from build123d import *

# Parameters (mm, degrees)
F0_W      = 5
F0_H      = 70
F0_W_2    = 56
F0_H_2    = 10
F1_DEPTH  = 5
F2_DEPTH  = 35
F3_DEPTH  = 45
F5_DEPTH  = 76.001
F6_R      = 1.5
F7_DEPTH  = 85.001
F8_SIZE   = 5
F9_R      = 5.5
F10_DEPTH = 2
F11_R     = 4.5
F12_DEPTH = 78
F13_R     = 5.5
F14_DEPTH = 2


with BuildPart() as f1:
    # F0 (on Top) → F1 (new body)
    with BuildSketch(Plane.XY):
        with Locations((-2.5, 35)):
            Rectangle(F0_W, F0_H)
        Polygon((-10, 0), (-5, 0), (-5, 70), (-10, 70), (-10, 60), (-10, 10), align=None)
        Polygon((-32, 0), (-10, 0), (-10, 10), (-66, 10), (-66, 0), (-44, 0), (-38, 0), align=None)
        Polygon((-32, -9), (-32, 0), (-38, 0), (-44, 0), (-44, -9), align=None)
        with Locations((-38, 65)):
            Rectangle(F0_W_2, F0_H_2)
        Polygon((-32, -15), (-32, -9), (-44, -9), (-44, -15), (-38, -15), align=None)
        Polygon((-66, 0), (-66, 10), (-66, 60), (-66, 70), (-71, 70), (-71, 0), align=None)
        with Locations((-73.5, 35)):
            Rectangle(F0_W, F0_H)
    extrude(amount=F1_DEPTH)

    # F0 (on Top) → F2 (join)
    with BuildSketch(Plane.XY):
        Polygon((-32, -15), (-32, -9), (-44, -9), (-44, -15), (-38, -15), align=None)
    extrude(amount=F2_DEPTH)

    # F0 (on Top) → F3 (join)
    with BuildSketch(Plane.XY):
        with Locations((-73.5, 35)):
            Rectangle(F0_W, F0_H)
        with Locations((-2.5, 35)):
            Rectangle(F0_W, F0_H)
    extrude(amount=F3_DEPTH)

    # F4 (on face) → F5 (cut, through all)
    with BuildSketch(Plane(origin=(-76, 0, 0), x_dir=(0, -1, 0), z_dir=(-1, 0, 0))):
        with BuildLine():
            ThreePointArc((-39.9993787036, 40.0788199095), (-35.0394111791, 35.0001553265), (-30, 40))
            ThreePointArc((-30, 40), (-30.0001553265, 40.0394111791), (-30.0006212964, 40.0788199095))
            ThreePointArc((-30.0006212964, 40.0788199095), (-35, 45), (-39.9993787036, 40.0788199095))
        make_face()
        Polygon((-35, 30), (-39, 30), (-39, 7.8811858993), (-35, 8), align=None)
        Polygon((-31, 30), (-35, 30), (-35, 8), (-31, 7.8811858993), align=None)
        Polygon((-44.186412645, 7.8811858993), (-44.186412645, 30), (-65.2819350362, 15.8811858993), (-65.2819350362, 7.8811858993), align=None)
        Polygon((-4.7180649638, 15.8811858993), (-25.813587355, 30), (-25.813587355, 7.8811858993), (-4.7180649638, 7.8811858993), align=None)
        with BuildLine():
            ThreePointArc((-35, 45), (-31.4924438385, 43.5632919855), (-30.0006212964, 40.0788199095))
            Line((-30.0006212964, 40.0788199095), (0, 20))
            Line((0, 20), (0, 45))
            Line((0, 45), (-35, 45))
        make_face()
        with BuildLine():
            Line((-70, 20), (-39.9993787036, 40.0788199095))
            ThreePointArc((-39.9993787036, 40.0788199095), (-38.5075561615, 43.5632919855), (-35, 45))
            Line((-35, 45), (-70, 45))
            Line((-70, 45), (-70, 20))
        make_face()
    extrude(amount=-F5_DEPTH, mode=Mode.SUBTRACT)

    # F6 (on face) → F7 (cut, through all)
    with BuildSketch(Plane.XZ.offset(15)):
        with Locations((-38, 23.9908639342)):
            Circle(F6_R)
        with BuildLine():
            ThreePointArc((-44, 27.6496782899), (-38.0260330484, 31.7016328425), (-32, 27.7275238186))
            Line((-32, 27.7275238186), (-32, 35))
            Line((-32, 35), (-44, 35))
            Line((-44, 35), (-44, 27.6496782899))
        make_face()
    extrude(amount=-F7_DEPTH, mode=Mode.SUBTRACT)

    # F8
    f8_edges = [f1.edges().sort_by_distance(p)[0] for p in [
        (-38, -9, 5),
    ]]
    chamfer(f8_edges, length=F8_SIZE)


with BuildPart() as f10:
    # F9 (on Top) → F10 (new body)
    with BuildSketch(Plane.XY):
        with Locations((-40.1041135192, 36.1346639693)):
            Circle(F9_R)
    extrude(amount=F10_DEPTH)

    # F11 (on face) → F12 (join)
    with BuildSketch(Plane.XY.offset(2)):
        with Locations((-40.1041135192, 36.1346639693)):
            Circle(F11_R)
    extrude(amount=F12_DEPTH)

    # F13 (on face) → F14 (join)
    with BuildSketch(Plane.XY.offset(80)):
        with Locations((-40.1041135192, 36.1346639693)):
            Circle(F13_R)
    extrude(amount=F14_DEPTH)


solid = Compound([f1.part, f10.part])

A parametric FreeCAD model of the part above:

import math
import FreeCAD as App
import Part
import Sketcher
from FreeCAD import Vector
Q = App.Units.Quantity


def edges_at(feature, points):
    """Names of the edges that pass closest to the given points."""
    edges = feature.Shape.Edges
    near = lambda p: min(range(len(edges)), key=lambda i: edges[i].distToShape(Part.Vertex(*p))[0])
    return sorted({f"Edge{near(p) + 1}" for p in points})


def add_polygon(sketch, points):
    """Adds a closed chain of lines whose ends are joined by coincident constraints."""
    first, n = sketch.GeometryCount, len(points)
    for a, b in zip(points, points[1:] + points[:1]):
        sketch.addGeometry(Part.LineSegment(App.Vector(*a, 0), App.Vector(*b, 0)), False)
    for i in range(n):
        sketch.addConstraint(Sketcher.Constraint("Coincident", first + i, 2, first + (i + 1) % n, 1))

doc = App.newDocument("Part")
body = doc.addObject("PartDesign::Body", "Body")

# Sketch on XY plane
sketch1 = doc.addObject("Sketcher::SketchObject", "Sketch")
body.addObject(sketch1)
sketch1.AttachmentSupport = (doc.XY_Plane, [""])
sketch1.MapMode = "FlatFace"
add_polygon(sketch1, [(0, 0), (0, 70), (-76, 70), (-76, 0), (-44, 0), (-44, -15), (-32, -15), (-32, 0)])  # lines 0-7
add_polygon(sketch1, [(-66, 60), (-10, 60), (-10, 10), (-66, 10)])  # lines 8-11
sketch1.addConstraint(Sketcher.Constraint("Vertical", 0))
sketch1.addConstraint(Sketcher.Constraint("Horizontal", 1))
sketch1.addConstraint(Sketcher.Constraint("Vertical", 2))
sketch1.addConstraint(Sketcher.Constraint("Horizontal", 3))
sketch1.addConstraint(Sketcher.Constraint("Vertical", 4))
sketch1.addConstraint(Sketcher.Constraint("Horizontal", 5))
sketch1.addConstraint(Sketcher.Constraint("Vertical", 6))
sketch1.addConstraint(Sketcher.Constraint("Horizontal", 7))
sketch1.addConstraint(Sketcher.Constraint("Horizontal", 8))
sketch1.addConstraint(Sketcher.Constraint("Vertical", 9))
sketch1.addConstraint(Sketcher.Constraint("Horizontal", 10))
sketch1.addConstraint(Sketcher.Constraint("Vertical", 11))
sketch1.addConstraint(Sketcher.Constraint("Coincident", 7, 2, -1, 1))
sketch1.addConstraint(Sketcher.Constraint("PointOnObject", 2, 2, -1))
sketch1.addConstraint(Sketcher.Constraint("Equal", 3, 7))
sketch1.addConstraint(Sketcher.Constraint("DistanceX", 1, 2, 1, 1, Q("76 mm")))
sketch1.addConstraint(Sketcher.Constraint("DistanceX", 3, 1, 3, 2, Q("32 mm")))
sketch1.addConstraint(Sketcher.Constraint("DistanceX", 8, 1, 8, 2, Q("56 mm")))
sketch1.addConstraint(Sketcher.Constraint("DistanceY", 0, 1, 0, 2, Q("70 mm")))
sketch1.addConstraint(Sketcher.Constraint("DistanceY", 4, 2, 4, 1, Q("15 mm")))
sketch1.addConstraint(Sketcher.Constraint("DistanceY", 9, 2, 9, 1, Q("50 mm")))
sketch1.addConstraint(Sketcher.Constraint("DistanceX", 8, 2, -1, 1, Q("10 mm")))
sketch1.addConstraint(Sketcher.Constraint("DistanceY", -1, 1, 8, 2, Q("60 mm")))
pad1 = doc.addObject("PartDesign::Pad", "Pad")
body.addObject(pad1)
pad1.Profile = sketch1
pad1.Length = 5

# Sketch on XY plane
sketch2 = doc.addObject("Sketcher::SketchObject", "Sketch001")
body.addObject(sketch2)
sketch2.AttachmentSupport = (doc.XY_Plane, [""])
sketch2.MapMode = "FlatFace"
add_polygon(sketch2, [(-32, -15), (-32, -9), (-44, -9), (-44, -15)])  # lines 0-3
sketch2.addConstraint(Sketcher.Constraint("Vertical", 0))
sketch2.addConstraint(Sketcher.Constraint("Horizontal", 1))
sketch2.addConstraint(Sketcher.Constraint("Vertical", 2))
sketch2.addConstraint(Sketcher.Constraint("Horizontal", 3))
sketch2.addConstraint(Sketcher.Constraint("DistanceX", 1, 2, 1, 1, Q("12 mm")))
sketch2.addConstraint(Sketcher.Constraint("DistanceY", 0, 1, 0, 2, Q("6 mm")))
sketch2.addConstraint(Sketcher.Constraint("DistanceX", 0, 2, -1, 1, Q("32 mm")))
sketch2.addConstraint(Sketcher.Constraint("DistanceY", 0, 2, -1, 1, Q("9 mm")))
pad2 = doc.addObject("PartDesign::Pad", "Pad001")
body.addObject(pad2)
pad2.Profile = sketch2
pad2.Length = 35

# Sketch on XY plane
sketch3 = doc.addObject("Sketcher::SketchObject", "Sketch002")
body.addObject(sketch3)
sketch3.AttachmentSupport = (doc.XY_Plane, [""])
sketch3.MapMode = "FlatFace"
add_polygon(sketch3, [(-76, 70), (-76, 0), (-71, 0), (-71, 70)])  # lines 0-3
add_polygon(sketch3, [(-5, 70), (-5, 0), (0, 0), (0, 70)])  # lines 4-7
sketch3.addConstraint(Sketcher.Constraint("Vertical", 0))
sketch3.addConstraint(Sketcher.Constraint("Horizontal", 1))
sketch3.addConstraint(Sketcher.Constraint("Vertical", 2))
sketch3.addConstraint(Sketcher.Constraint("Horizontal", 3))
sketch3.addConstraint(Sketcher.Constraint("Vertical", 4))
sketch3.addConstraint(Sketcher.Constraint("Horizontal", 5))
sketch3.addConstraint(Sketcher.Constraint("Vertical", 6))
sketch3.addConstraint(Sketcher.Constraint("Horizontal", 7))
sketch3.addConstraint(Sketcher.Constraint("Coincident", 5, 2, -1, 1))
sketch3.addConstraint(Sketcher.Constraint("PointOnObject", 0, 2, -1))
sketch3.addConstraint(Sketcher.Constraint("Horizontal", 3, 2, 6, 2))
sketch3.addConstraint(Sketcher.Constraint("Equal", 3, 5))
sketch3.addConstraint(Sketcher.Constraint("DistanceX", 1, 1, 1, 2, Q("5 mm")))
sketch3.addConstraint(Sketcher.Constraint("DistanceY", 0, 2, 0, 1, Q("70 mm")))
sketch3.addConstraint(Sketcher.Constraint("DistanceX", 0, 2, -1, 1, Q("76 mm")))
pad3 = doc.addObject("PartDesign::Pad", "Pad002")
body.addObject(pad3)
pad3.Profile = sketch3
pad3.Length = 45

# Sketch on YZ plane
sketch4 = doc.addObject("Sketcher::SketchObject", "Sketch003")
body.addObject(sketch4)
sketch4.AttachmentSupport = (doc.YZ_Plane, [""])
sketch4.MapMode = "FlatFace"
sketch4.AttachmentOffset = App.Placement(Vector(0, 0, -76), App.Rotation())
sketch4.addGeometry(Part.ArcOfCircle(Part.Circle(Vector(35, 40, 0), Vector(0, 0, 1), 5), math.radians(180), math.radians(361)), False)  # 0
sketch4.addGeometry(Part.ArcOfCircle(Part.Circle(Vector(35, 40, 0), Vector(0, 0, 1), 5), math.radians(179.1), math.radians(180)), False)  # 1
sketch4.addGeometry(Part.LineSegment(Vector(30, 40.08, 0), Vector(0, 20, 0)), False)  # 2
sketch4.addGeometry(Part.LineSegment(Vector(0, 20, 0), Vector(0, 45, 0)), False)  # 3
sketch4.addGeometry(Part.LineSegment(Vector(0, 45, 0), Vector(70, 45, 0)), False)  # 4
sketch4.addGeometry(Part.LineSegment(Vector(70, 45, 0), Vector(70, 20, 0)), False)  # 5
sketch4.addGeometry(Part.LineSegment(Vector(70, 20, 0), Vector(40, 40.08, 0)), False)  # 6
add_polygon(sketch4, [(39, 30), (39, 7.88), (35, 8), (31, 7.88), (31, 30)])  # lines 7-11
add_polygon(sketch4, [(44.19, 7.88), (44.19, 30), (65.28, 15.88), (65.28, 7.88)])  # lines 12-15
add_polygon(sketch4, [(4.72, 15.88), (25.81, 30), (25.81, 7.88), (4.72, 7.88)])  # lines 16-19
sketch4.addConstraint(Sketcher.Constraint("Tangent", 0, 1, 1, 2))
sketch4.addConstraint(Sketcher.Constraint("Coincident", 1, 1, 2, 1))
sketch4.addConstraint(Sketcher.Constraint("Coincident", 2, 2, 3, 1))
sketch4.addConstraint(Sketcher.Constraint("Coincident", 3, 2, 4, 1))
sketch4.addConstraint(Sketcher.Constraint("Coincident", 4, 2, 5, 1))
sketch4.addConstraint(Sketcher.Constraint("Coincident", 5, 2, 6, 1))
sketch4.addConstraint(Sketcher.Constraint("Coincident", 6, 2, 0, 2))
sketch4.addConstraint(Sketcher.Constraint("Vertical", 3))
sketch4.addConstraint(Sketcher.Constraint("Horizontal", 4))
sketch4.addConstraint(Sketcher.Constraint("Vertical", 5))
sketch4.addConstraint(Sketcher.Constraint("Vertical", 7))
sketch4.addConstraint(Sketcher.Constraint("Vertical", 10))
sketch4.addConstraint(Sketcher.Constraint("Horizontal", 11))
sketch4.addConstraint(Sketcher.Constraint("Vertical", 12))
sketch4.addConstraint(Sketcher.Constraint("Vertical", 14))
sketch4.addConstraint(Sketcher.Constraint("Horizontal", 15))
sketch4.addConstraint(Sketcher.Constraint("Vertical", 17))
sketch4.addConstraint(Sketcher.Constraint("Horizontal", 18))
sketch4.addConstraint(Sketcher.Constraint("Vertical", 19))
sketch4.addConstraint(Sketcher.Constraint("Equal", 0, 1))
sketch4.addConstraint(Sketcher.Constraint("PointOnObject", 2, 2, -2))
sketch4.addConstraint(Sketcher.Constraint("Parallel", 6, 13))
sketch4.addConstraint(Sketcher.Constraint("Parallel", 2, 16))
sketch4.addConstraint(Sketcher.Constraint("Horizontal", 1, 3, 0, 1))
sketch4.addConstraint(Sketcher.Constraint("Horizontal", 2, 2, 5, 2))
sketch4.addConstraint(Sketcher.Constraint("Horizontal", 1, 1, 6, 2))
sketch4.addConstraint(Sketcher.Constraint("Horizontal", 7, 2, 9, 2))
sketch4.addConstraint(Sketcher.Constraint("Horizontal", 11, 2, 12, 2))
sketch4.addConstraint(Sketcher.Constraint("Horizontal", 9, 2, 14, 2))
sketch4.addConstraint(Sketcher.Constraint("Horizontal", 12, 2, 16, 2))
sketch4.addConstraint(Sketcher.Constraint("Horizontal", 15, 2, 17, 2))
sketch4.addConstraint(Sketcher.Constraint("Horizontal", 13, 2, 19, 2))
sketch4.addConstraint(Sketcher.Constraint("Vertical", 1, 3, 8, 2))
sketch4.addConstraint(Sketcher.Constraint("Equal", 15, 18))
sketch4.addConstraint(Sketcher.Constraint("Equal", 11, 14))
sketch4.addConstraint(Sketcher.Constraint("Equal", 8, 9))
sketch4.addConstraint(Sketcher.Constraint("Radius", 0, Q("5 mm")))
sketch4.addConstraint(Sketcher.Constraint("DistanceX", 4, 1, 4, 2, Q("70 mm")))
sketch4.addConstraint(Sketcher.Constraint("DistanceX", 11, 1, 11, 2, Q("8 mm")))
sketch4.addConstraint(Sketcher.Constraint("DistanceY", 3, 1, 3, 2, Q("25 mm")))
sketch4.addConstraint(Sketcher.Constraint("DistanceY", -1, 1, 0, 3, Q("40 mm")))
sketch4.addConstraint(Sketcher.Constraint("DistanceY", -1, 1, 2, 2, Q("20 mm")))
sketch4.addConstraint(Sketcher.Constraint("DistanceY", -1, 1, 8, 2, Q("8 mm")))
sketch4.addConstraint(Sketcher.Constraint("DistanceY", -1, 1, 10, 2, Q("30 mm")))
sketch4.addConstraint(Sketcher.Constraint("Distance", 2, Q("36.09981 mm")))
sketch4.addConstraint(Sketcher.Constraint("DistanceX", 15, 2, 15, 1, Q("21.095522 mm")))
sketch4.addConstraint(Sketcher.Constraint("DistanceX", -1, 1, 12, 2, Q("44.186413 mm")))
sketch4.addConstraint(Sketcher.Constraint("DistanceX", -1, 1, 16, 2, Q("25.813587 mm")))
pocket1 = doc.addObject("PartDesign::Pocket", "Pocket")
body.addObject(pocket1)
pocket1.Profile = sketch4
pocket1.Type = "ThroughAll"
pocket1.Reversed = True

# Sketch on XZ plane
sketch5 = doc.addObject("Sketcher::SketchObject", "Sketch004")
body.addObject(sketch5)
sketch5.AttachmentSupport = (doc.XZ_Plane, [""])
sketch5.MapMode = "FlatFace"
sketch5.AttachmentOffset = App.Placement(Vector(0, 0, 15), App.Rotation())
sketch5.addGeometry(Part.Circle(Vector(-38, 24, 0), Vector(0, 0, 1), 1.5), False)
sketch5.addGeometry(Part.ArcOfCircle(Part.Circle(Vector(-38, 25.2, 0), Vector(0, 0, 1), 6.5), math.radians(23), math.radians(158)), False)
sketch5.addGeometry(Part.LineSegment(Vector(-32, 27.7, 0), Vector(-32, 35, 0)), False)
sketch5.addGeometry(Part.LineSegment(Vector(-32, 35, 0), Vector(-44, 35, 0)), False)
sketch5.addGeometry(Part.LineSegment(Vector(-44, 35, 0), Vector(-44, 27.6, 0)), False)
sketch5.addConstraint(Sketcher.Constraint("Coincident", 1, 1, 2, 1))
sketch5.addConstraint(Sketcher.Constraint("Coincident", 2, 2, 3, 1))
sketch5.addConstraint(Sketcher.Constraint("Coincident", 3, 2, 4, 1))
sketch5.addConstraint(Sketcher.Constraint("Coincident", 4, 2, 1, 2))
sketch5.addConstraint(Sketcher.Constraint("Vertical", 2))
sketch5.addConstraint(Sketcher.Constraint("Horizontal", 3))
sketch5.addConstraint(Sketcher.Constraint("Vertical", 4))
sketch5.addConstraint(Sketcher.Constraint("Diameter", 0, Q("3 mm")))
sketch5.addConstraint(Sketcher.Constraint("DistanceX", 3, 2, 3, 1, Q("12 mm")))
sketch5.addConstraint(Sketcher.Constraint("DistanceX", 0, 3, -1, 1, Q("38 mm")))
sketch5.addConstraint(Sketcher.Constraint("DistanceX", 1, 1, -1, 1, Q("32 mm")))
sketch5.addConstraint(Sketcher.Constraint("DistanceY", -1, 1, 2, 2, Q("35 mm")))
sketch5.addConstraint(Sketcher.Constraint("Radius", 1, Q("6.492039 mm")))
sketch5.addConstraint(Sketcher.Constraint("DistanceY", 4, 2, 4, 1, Q("7.350322 mm")))
sketch5.addConstraint(Sketcher.Constraint("DistanceY", 2, 1, 2, 2, Q("7.272476 mm")))
sketch5.addConstraint(Sketcher.Constraint("DistanceY", 0, 3, 1, 1, Q("3.73666 mm")))
pocket2 = doc.addObject("PartDesign::Pocket", "Pocket001")
body.addObject(pocket2)
pocket2.Profile = sketch5
pocket2.Type = "ThroughAll"
doc.recompute()

chamfer = doc.addObject("PartDesign::Chamfer", "Chamfer")
body.addObject(chamfer)
chamfer.Base = (pocket2, edges_at(pocket2, [(-38, -9, 5)]))
chamfer.Size = 5
body2 = doc.addObject("PartDesign::Body", "Body001")

# Sketch on XY plane
sketch6 = doc.addObject("Sketcher::SketchObject", "Sketch005")
body2.addObject(sketch6)
sketch6.AttachmentSupport = (doc.getObject("XY_Plane001"), [""])
sketch6.MapMode = "FlatFace"
sketch6.addGeometry(Part.Circle(Vector(-40, 36, 0), Vector(0, 0, 1), 6), False)
sketch6.addConstraint(Sketcher.Constraint("Diameter", 0, Q("11 mm")))
sketch6.addConstraint(Sketcher.Constraint("DistanceX", 0, 3, -1, 1, Q("40.104114 mm")))
sketch6.addConstraint(Sketcher.Constraint("DistanceY", -1, 1, 0, 3, Q("36.134664 mm")))
pad4 = doc.addObject("PartDesign::Pad", "Pad003")
body2.addObject(pad4)
pad4.Profile = sketch6
pad4.Length = 2

# Sketch on XY plane
sketch7 = doc.addObject("Sketcher::SketchObject", "Sketch006")
body2.addObject(sketch7)
sketch7.AttachmentSupport = (doc.getObject("XY_Plane001"), [""])
sketch7.MapMode = "FlatFace"
sketch7.AttachmentOffset = App.Placement(Vector(0, 0, 2), App.Rotation())
sketch7.addGeometry(Part.Circle(Vector(-40.1, 36.1, 0), Vector(0, 0, 1), 4.5), False)
sketch7.addConstraint(Sketcher.Constraint("Diameter", 0, Q("9 mm")))
sketch7.addConstraint(Sketcher.Constraint("DistanceX", 0, 3, -1, 1, Q("40.104114 mm")))
sketch7.addConstraint(Sketcher.Constraint("DistanceY", -1, 1, 0, 3, Q("36.134664 mm")))
pad5 = doc.addObject("PartDesign::Pad", "Pad004")
body2.addObject(pad5)
pad5.Profile = sketch7
pad5.Length = 78

# Sketch on XY plane
sketch8 = doc.addObject("Sketcher::SketchObject", "Sketch007")
body2.addObject(sketch8)
sketch8.AttachmentSupport = (doc.getObject("XY_Plane001"), [""])
sketch8.MapMode = "FlatFace"
sketch8.AttachmentOffset = App.Placement(Vector(0, 0, 80), App.Rotation())
sketch8.addGeometry(Part.Circle(Vector(-40, 36, 0), Vector(0, 0, 1), 6), False)
sketch8.addConstraint(Sketcher.Constraint("Diameter", 0, Q("11 mm")))
sketch8.addConstraint(Sketcher.Constraint("DistanceX", 0, 3, -1, 1, Q("40.104114 mm")))
sketch8.addConstraint(Sketcher.Constraint("DistanceY", -1, 1, 0, 3, Q("36.134664 mm")))
pad6 = doc.addObject("PartDesign::Pad", "Pad005")
body2.addObject(pad6)
pad6.Profile = sketch8
pad6.Length = 2

doc.recompute()
